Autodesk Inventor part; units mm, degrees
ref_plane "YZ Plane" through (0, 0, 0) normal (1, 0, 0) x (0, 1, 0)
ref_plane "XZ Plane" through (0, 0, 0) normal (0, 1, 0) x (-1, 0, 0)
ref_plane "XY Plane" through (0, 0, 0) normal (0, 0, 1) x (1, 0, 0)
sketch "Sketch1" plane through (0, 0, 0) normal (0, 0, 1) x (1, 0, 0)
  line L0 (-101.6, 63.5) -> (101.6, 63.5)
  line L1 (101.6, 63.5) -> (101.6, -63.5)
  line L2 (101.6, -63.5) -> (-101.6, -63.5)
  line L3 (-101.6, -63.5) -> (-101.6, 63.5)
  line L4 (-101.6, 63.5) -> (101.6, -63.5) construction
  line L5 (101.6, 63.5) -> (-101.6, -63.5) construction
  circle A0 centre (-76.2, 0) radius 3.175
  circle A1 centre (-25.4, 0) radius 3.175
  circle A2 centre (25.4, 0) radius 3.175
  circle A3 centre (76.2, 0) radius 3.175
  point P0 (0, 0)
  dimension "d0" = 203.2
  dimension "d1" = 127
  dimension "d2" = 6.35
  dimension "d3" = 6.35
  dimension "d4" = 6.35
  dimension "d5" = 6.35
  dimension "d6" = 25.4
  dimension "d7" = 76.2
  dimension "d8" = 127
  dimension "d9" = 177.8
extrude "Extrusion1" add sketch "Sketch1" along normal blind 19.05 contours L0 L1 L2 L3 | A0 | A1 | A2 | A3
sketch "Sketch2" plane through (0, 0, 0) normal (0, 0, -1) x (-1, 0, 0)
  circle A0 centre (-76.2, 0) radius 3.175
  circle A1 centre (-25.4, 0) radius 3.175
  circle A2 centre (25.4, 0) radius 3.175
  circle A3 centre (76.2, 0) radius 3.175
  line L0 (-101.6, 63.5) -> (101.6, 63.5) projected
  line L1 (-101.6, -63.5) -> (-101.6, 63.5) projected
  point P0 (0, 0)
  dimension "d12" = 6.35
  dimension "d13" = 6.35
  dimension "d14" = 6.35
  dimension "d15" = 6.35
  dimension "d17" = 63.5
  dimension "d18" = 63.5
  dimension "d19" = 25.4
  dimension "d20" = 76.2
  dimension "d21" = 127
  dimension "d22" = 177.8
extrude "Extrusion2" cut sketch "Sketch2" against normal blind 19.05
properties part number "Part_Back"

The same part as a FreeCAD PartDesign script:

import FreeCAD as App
import Part
import Sketcher

V = App.Vector
Q = App.Units.Quantity


def add_polygon(sketch, points):
    """Adds a closed chain of lines whose ends are joined by coincident constraints."""
    first, n = sketch.GeometryCount, len(points)
    for a, b in zip(points, points[1:] + points[:1]):
        sketch.addGeometry(Part.LineSegment(App.Vector(*a, 0), App.Vector(*b, 0)), False)
    for i in range(n):
        sketch.addConstraint(Sketcher.Constraint("Coincident", first + i, 2, first + (i + 1) % n, 1))

doc = App.newDocument("Part")
params = doc.addObject("Spreadsheet::Sheet", "Params")
for row, (alias, value) in enumerate([
    ("sketch1_width", "8 in"),
    ("sketch1_height", "5 in"),
    ("pad1_length", "0.75 in"),
    ("sketch2_diameter", "0.25 in"),
    ("pocket1_length", "0.75 in"),
], start=1):
    params.set(f"A{row}", alias)
    params.set(f"B{row}", "=" + value)
    params.setAlias(f"B{row}", alias)

body = doc.addObject("PartDesign::Body", "Body")

# Sketch on XY plane
sketch1 = body.newObject("Sketcher::SketchObject", "Sketch")
sketch1.AttachmentSupport = (doc.getObject("XY_Plane"), [""])
sketch1.MapMode = "FlatFace"
add_polygon(sketch1, [(101.6, 63.5), (-101.6, 63.5), (-101.6, -63.5), (101.6, -63.5)])  # lines 0-3
sketch1.addConstraint([
    Sketcher.Constraint("Horizontal", 0),
    Sketcher.Constraint("Vertical", 1),
    Sketcher.Constraint("Horizontal", 2),
    Sketcher.Constraint("Vertical", 3),
    Sketcher.Constraint("Symmetric", 0, 2, 2, 2, -1, 1),
    Sketcher.Constraint("DistanceX", 0, 2, 0, 1, Q("8 in")),
    Sketcher.Constraint("DistanceY", 1, 2, 1, 1, Q("5 in")),
])
sketch1.setExpression("Constraints[9]", "Params.sketch1_width")
sketch1.setExpression("Constraints[10]", "Params.sketch1_height")
pad1 = body.newObject("PartDesign::Pad", "Pad")
pad1.Profile = sketch1
pad1.setExpression("Length", "Params.pad1_length")

# Sketch on XY plane
sketch2 = body.newObject("Sketcher::SketchObject", "Sketch001")
sketch2.AttachmentSupport = (doc.getObject("XY_Plane"), [""])
sketch2.MapMode = "FlatFace"
sketch2.addGeometry([
    Part.Circle(V(76.2, 0, 0), V(0, 0, 1), 3.175),
    Part.Circle(V(25.4, 0, 0), V(0, 0, 1), 3.175),
    Part.Circle(V(-25.4, 0, 0), V(0, 0, 1), 3.175),
    Part.Circle(V(-76.2, 0, 0), V(0, 0, 1), 3.175),
], False)
sketch2.addConstraint([
    Sketcher.Constraint("Equal", 0, 1),
    Sketcher.Constraint("Equal", 1, 2),
    Sketcher.Constraint("Equal", 2, 3),
    Sketcher.Constraint("Symmetric", 1, 3, 2, 3, -1, 1),
    Sketcher.Constraint("Symmetric", 0, 3, 3, 3, -1, 1),
    Sketcher.Constraint("PointOnObject", 0, 3, -1),
    Sketcher.Constraint("PointOnObject", 1, 3, -1),
    Sketcher.Constraint("Diameter", 0, Q("0.25 in")),
    Sketcher.Constraint("DistanceX", -1, 1, 0, 3, Q("3 in")),
    Sketcher.Constraint("DistanceX", -1, 1, 1, 3, Q("1 in")),
])
sketch2.setExpression("Constraints[7]", "Params.sketch2_diameter")
pocket1 = body.newObject("PartDesign::Pocket", "Pocket")
pocket1.Profile = sketch2
pocket1.setExpression("Length", "Params.pocket1_length")
pocket1.Reversed = True

doc.recompute()
